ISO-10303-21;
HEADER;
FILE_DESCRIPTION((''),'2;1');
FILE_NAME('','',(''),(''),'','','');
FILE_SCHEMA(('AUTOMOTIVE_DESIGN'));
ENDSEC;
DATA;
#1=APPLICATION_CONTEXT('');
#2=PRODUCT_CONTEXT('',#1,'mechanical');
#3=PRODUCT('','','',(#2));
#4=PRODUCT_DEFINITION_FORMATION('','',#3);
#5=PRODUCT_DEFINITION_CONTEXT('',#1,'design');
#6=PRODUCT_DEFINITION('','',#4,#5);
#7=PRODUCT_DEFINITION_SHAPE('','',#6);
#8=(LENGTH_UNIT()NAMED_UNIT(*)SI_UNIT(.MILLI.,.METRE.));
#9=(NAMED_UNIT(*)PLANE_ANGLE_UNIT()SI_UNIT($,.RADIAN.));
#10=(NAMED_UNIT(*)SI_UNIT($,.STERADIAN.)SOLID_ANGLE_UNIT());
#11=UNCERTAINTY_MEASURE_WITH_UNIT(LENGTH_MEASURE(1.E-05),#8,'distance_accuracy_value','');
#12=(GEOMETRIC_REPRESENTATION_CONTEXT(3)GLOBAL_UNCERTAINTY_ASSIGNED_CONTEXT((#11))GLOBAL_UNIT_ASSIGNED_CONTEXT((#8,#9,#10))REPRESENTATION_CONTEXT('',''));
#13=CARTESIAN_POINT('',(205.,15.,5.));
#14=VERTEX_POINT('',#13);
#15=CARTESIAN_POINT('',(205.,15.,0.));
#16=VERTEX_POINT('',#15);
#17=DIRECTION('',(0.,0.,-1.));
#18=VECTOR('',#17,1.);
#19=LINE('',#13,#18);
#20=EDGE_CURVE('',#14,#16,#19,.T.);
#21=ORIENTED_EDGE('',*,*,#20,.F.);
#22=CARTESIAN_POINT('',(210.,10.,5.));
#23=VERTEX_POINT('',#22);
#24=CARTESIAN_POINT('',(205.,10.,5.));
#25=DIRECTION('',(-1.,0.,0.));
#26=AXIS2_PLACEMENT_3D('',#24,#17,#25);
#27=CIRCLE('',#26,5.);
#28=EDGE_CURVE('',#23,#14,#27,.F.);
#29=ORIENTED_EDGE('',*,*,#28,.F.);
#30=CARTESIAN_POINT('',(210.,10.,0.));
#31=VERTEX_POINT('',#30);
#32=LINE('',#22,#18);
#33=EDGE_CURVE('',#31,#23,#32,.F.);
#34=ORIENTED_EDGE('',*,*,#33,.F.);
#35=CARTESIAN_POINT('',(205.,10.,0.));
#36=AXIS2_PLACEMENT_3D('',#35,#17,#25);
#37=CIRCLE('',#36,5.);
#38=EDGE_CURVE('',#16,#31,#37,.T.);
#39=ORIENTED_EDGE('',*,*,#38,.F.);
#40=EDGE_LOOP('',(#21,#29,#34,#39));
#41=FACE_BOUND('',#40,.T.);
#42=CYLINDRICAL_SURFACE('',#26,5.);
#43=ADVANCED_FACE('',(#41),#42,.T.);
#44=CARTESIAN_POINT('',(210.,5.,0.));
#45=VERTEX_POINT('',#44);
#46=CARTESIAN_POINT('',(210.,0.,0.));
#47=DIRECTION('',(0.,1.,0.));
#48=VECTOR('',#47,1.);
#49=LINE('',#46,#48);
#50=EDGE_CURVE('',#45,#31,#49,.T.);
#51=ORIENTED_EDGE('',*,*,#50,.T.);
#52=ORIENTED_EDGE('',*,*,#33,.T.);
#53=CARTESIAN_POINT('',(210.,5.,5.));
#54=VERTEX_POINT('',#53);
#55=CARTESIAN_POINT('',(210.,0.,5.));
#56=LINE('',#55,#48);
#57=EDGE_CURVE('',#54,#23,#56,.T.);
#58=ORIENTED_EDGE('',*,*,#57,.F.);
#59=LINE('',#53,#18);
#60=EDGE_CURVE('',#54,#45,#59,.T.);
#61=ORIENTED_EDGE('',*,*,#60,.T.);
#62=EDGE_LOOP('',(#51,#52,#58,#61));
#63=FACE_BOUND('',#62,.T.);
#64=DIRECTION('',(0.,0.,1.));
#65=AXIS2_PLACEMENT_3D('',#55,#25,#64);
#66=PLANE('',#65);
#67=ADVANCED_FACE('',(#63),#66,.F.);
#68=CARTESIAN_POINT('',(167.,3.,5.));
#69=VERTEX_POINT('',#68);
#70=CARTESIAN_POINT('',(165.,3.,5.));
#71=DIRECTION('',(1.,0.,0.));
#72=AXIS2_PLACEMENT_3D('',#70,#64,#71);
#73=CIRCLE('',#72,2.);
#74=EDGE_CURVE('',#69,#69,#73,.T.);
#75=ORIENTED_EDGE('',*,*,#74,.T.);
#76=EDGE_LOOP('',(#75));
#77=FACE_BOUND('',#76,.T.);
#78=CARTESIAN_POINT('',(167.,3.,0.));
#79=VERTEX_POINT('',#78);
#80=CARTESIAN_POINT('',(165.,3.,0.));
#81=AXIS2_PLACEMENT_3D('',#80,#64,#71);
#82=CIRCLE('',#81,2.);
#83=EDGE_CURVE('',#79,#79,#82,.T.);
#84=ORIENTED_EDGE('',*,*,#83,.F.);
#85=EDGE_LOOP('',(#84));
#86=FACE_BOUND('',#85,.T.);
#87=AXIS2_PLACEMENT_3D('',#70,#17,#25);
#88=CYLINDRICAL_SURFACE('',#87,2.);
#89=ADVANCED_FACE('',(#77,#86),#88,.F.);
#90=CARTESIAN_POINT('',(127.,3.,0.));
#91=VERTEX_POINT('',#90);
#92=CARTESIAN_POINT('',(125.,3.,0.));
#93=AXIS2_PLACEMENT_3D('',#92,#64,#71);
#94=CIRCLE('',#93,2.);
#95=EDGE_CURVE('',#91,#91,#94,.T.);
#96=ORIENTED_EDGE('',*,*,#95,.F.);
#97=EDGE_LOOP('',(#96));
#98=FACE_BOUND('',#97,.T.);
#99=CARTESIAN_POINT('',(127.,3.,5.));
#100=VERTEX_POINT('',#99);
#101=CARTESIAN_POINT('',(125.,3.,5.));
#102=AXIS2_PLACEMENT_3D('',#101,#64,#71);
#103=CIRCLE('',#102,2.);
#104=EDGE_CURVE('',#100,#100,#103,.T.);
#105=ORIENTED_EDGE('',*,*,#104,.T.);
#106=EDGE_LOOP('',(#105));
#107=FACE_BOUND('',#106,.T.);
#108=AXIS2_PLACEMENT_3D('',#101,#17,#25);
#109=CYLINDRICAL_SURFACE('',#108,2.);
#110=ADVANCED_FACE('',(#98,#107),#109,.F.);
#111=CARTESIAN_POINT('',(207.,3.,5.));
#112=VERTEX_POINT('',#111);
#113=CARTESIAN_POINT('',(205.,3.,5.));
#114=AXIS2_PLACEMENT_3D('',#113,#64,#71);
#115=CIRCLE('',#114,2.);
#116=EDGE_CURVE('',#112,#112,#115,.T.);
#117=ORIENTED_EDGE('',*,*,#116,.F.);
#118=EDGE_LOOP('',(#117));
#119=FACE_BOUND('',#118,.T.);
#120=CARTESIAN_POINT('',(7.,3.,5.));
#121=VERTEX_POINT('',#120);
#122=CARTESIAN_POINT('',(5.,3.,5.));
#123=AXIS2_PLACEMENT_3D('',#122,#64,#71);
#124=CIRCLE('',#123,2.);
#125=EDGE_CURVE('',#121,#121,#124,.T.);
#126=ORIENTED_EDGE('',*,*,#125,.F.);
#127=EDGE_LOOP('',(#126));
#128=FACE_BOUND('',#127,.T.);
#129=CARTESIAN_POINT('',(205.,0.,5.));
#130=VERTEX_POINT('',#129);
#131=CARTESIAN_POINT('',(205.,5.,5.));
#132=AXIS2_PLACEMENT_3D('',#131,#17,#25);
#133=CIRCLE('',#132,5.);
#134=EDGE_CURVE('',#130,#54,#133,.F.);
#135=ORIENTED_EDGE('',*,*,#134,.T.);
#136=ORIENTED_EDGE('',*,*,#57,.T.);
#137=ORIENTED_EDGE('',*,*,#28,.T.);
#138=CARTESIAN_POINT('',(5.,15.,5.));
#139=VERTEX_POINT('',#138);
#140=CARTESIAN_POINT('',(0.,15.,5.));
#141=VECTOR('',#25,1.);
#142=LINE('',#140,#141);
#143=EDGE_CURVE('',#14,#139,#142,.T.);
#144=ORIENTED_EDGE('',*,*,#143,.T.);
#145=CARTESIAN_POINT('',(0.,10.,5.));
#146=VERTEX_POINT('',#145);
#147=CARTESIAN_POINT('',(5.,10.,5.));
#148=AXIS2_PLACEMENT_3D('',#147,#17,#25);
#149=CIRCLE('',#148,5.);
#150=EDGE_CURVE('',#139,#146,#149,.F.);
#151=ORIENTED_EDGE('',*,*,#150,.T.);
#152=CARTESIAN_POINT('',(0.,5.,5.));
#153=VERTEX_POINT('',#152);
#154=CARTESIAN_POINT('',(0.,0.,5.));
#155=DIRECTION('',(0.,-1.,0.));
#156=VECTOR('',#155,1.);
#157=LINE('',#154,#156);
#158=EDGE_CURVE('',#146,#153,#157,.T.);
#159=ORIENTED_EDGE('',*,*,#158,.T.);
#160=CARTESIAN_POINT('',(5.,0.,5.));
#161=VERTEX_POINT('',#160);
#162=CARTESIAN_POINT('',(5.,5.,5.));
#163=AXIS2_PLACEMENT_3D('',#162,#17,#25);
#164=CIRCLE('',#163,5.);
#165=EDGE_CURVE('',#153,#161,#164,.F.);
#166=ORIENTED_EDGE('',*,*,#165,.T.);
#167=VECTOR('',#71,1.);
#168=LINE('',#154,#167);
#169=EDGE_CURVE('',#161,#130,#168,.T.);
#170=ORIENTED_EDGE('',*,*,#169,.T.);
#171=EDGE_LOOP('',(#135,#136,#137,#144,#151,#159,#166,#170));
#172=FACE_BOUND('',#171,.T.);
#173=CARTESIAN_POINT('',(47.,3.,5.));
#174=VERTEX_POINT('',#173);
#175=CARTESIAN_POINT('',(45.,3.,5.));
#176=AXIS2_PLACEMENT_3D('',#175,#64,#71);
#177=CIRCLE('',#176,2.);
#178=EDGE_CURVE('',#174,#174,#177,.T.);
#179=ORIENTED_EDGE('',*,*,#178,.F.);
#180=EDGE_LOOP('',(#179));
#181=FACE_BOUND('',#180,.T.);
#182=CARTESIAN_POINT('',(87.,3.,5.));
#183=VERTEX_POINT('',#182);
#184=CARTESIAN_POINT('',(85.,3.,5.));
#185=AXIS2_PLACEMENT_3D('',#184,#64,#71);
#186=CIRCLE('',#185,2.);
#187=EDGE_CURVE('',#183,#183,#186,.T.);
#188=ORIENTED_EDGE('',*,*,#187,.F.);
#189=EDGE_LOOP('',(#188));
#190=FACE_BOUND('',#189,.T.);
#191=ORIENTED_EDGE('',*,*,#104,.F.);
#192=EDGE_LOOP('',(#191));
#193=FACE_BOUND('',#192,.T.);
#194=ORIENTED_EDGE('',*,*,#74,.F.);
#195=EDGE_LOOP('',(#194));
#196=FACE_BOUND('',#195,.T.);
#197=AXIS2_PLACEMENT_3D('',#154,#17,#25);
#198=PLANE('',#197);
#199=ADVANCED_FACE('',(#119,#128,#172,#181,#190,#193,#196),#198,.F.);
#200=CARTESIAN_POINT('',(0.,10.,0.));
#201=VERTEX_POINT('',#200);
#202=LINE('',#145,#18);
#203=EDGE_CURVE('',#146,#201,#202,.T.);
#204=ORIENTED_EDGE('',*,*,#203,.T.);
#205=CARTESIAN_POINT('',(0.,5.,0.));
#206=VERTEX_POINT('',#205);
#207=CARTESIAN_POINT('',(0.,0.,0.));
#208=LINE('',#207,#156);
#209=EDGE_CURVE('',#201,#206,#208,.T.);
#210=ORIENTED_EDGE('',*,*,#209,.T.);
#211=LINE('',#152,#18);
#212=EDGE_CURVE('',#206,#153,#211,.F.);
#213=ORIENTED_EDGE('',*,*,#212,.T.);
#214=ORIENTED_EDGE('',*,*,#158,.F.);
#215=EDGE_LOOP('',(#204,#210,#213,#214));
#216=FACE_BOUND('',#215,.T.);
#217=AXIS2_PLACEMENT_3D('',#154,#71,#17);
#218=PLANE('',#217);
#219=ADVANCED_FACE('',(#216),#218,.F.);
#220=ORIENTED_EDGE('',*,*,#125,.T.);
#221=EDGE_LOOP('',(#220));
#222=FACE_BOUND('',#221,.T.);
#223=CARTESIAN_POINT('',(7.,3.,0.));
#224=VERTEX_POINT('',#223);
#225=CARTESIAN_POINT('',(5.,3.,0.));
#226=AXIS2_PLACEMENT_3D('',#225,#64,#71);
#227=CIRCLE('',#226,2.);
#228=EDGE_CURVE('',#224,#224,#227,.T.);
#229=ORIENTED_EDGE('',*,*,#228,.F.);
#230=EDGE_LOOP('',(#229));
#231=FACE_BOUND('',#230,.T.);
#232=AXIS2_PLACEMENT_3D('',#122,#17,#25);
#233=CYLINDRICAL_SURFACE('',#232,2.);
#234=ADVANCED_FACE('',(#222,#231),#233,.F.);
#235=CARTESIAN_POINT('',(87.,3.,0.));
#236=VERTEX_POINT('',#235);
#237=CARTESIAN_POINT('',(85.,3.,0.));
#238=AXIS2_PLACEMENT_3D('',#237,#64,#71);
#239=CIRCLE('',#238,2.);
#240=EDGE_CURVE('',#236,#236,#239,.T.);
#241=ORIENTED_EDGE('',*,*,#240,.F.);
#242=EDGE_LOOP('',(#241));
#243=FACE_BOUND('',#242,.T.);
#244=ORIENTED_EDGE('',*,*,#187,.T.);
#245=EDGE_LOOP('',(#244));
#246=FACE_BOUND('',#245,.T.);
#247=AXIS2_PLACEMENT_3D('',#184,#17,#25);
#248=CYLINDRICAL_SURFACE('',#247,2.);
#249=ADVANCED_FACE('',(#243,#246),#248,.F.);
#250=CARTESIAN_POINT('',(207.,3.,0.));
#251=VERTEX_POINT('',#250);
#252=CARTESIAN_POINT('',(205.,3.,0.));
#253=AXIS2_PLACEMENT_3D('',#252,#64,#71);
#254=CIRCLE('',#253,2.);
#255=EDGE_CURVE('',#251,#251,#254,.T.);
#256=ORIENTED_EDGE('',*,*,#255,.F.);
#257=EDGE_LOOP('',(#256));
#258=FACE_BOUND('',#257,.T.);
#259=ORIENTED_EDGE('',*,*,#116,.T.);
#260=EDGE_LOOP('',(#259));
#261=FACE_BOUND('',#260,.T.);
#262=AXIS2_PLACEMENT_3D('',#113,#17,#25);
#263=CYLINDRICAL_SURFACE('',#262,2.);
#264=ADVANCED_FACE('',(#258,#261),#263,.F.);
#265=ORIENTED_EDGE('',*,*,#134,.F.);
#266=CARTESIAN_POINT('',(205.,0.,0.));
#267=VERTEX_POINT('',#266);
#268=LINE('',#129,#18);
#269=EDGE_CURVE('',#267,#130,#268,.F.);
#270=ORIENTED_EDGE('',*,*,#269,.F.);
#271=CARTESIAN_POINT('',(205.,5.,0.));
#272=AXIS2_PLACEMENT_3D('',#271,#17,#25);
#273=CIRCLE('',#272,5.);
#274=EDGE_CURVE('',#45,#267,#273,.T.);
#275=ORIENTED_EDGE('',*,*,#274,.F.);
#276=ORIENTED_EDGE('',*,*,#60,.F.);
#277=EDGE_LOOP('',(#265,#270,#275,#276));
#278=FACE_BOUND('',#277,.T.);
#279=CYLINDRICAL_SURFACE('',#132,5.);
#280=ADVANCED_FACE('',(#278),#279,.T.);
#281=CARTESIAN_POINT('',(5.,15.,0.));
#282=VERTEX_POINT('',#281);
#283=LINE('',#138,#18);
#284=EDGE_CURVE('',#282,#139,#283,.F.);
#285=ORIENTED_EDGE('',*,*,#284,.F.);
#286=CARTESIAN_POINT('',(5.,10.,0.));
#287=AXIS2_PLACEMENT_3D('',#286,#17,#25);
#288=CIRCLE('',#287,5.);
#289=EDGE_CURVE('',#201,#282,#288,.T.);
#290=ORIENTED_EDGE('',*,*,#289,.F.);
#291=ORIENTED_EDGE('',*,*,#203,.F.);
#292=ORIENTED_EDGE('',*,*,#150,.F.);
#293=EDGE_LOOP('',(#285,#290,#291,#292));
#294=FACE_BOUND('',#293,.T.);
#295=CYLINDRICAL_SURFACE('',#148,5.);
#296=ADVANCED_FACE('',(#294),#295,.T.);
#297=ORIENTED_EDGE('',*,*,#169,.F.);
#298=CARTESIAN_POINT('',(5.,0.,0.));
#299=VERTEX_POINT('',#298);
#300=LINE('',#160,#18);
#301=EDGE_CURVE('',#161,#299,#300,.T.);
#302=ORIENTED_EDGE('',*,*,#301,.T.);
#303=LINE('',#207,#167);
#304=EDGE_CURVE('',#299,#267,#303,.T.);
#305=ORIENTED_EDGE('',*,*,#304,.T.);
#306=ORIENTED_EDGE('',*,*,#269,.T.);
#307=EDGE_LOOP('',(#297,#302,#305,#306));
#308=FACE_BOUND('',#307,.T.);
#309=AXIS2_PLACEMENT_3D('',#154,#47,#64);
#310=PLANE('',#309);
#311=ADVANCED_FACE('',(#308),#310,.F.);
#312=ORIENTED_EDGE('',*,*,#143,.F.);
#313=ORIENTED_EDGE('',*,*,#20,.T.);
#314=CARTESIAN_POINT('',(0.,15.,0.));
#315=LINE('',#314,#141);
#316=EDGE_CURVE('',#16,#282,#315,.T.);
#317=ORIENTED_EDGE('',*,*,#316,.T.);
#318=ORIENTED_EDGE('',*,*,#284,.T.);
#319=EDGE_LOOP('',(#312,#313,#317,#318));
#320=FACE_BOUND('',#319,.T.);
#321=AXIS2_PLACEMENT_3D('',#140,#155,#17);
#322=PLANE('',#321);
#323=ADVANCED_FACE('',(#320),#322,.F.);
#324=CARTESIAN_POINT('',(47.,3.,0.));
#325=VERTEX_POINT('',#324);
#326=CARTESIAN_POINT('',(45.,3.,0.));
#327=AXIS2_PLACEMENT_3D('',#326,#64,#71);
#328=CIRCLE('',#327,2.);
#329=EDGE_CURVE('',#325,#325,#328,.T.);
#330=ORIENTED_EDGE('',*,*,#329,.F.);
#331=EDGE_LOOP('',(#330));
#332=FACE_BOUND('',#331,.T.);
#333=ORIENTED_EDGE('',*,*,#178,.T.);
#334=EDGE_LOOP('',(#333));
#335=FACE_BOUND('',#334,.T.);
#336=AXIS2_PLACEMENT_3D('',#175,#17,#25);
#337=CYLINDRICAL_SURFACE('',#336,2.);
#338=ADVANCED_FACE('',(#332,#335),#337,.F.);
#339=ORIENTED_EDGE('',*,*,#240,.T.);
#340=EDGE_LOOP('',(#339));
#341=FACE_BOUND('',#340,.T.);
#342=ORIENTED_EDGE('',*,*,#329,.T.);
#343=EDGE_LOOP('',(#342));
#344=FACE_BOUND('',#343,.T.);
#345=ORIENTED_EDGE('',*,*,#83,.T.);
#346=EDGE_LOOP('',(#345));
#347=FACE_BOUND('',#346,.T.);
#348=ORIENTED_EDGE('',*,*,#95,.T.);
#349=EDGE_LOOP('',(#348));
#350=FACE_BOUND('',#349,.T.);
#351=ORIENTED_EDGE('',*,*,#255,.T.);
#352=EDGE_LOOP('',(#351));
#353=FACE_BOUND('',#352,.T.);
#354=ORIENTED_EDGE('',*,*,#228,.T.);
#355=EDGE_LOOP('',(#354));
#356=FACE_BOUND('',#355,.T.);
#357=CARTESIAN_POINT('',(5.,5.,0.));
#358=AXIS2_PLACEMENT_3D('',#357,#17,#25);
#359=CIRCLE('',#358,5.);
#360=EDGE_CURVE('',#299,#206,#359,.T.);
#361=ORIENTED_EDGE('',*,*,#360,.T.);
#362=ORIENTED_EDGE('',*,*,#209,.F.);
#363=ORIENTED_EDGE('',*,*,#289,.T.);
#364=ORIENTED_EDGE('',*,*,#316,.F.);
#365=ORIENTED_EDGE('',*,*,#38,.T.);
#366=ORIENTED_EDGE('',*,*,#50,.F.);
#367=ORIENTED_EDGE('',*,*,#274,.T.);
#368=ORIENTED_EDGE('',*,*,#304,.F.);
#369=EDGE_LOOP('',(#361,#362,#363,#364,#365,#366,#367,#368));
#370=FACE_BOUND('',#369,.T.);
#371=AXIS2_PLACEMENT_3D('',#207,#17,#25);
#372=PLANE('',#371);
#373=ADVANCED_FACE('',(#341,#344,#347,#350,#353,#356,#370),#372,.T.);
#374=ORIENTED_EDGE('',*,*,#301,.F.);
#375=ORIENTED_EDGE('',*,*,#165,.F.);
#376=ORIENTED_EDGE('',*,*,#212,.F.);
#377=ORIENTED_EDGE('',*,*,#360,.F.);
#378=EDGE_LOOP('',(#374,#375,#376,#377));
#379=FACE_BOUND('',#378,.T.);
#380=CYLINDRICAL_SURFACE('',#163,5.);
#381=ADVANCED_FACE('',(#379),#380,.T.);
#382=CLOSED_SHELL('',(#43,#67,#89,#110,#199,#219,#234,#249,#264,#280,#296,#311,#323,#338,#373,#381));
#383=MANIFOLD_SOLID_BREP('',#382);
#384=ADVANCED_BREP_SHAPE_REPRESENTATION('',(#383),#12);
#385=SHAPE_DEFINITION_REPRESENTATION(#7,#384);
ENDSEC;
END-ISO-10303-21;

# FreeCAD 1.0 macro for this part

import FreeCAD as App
import Part
import Sketcher
from FreeCAD import Vector
Q = App.Units.Quantity


def edges_at(feature, points):
    """Names of the edges that pass closest to the given points."""
    edges = feature.Shape.Edges
    near = lambda p: min(range(len(edges)), key=lambda i: edges[i].distToShape(Part.Vertex(*p))[0])
    return sorted({f"Edge{near(p) + 1}" for p in points})


def add_polygon(sketch, points):
    """Adds a closed chain of lines whose ends are joined by coincident constraints."""
    first, n = sketch.GeometryCount, len(points)
    for a, b in zip(points, points[1:] + points[:1]):
        sketch.addGeometry(Part.LineSegment(App.Vector(*a, 0), App.Vector(*b, 0)), False)
    for i in range(n):
        sketch.addConstraint(Sketcher.Constraint("Coincident", first + i, 2, first + (i + 1) % n, 1))

doc = App.newDocument("Part")
body = doc.addObject("PartDesign::Body", "Body")

sketch1 = body.newObject("Sketcher::SketchObject", "Sketch")
sketch1.AttachmentSupport = (doc.getObject("XY_Plane"), [""])
sketch1.MapMode = "FlatFace"
add_polygon(sketch1, [(0, 15), (0, 0), (210, 0), (210, 15)])
sketch1.addGeometry(Part.Circle(Vector(5, 3, 0), Vector(0, 0, 1), 2), False)
sketch1.addGeometry(Part.Circle(Vector(45, 3, 0), Vector(0, 0, 1), 2), False)
sketch1.addGeometry(Part.Circle(Vector(85, 3, 0), Vector(0, 0, 1), 2), False)
sketch1.addGeometry(Part.Circle(Vector(125, 3, 0), Vector(0, 0, 1), 2), False)
sketch1.addGeometry(Part.Circle(Vector(165, 3, 0), Vector(0, 0, 1), 2), False)
sketch1.addGeometry(Part.Circle(Vector(205, 3, 0), Vector(0, 0, 1), 2), False)
sketch1.addConstraint([
    Sketcher.Constraint("Vertical", 0),
    Sketcher.Constraint("Horizontal", 1),
    Sketcher.Constraint("Vertical", 2),
    Sketcher.Constraint("Horizontal", 3),
    Sketcher.Constraint("Coincident", 0, 2, -1, 1),
    Sketcher.Constraint("Equal", 4, 5),
    Sketcher.Constraint("Equal", 5, 6),
    Sketcher.Constraint("Equal", 6, 7),
    Sketcher.Constraint("Equal", 7, 8),
    Sketcher.Constraint("Equal", 8, 9),
    Sketcher.Constraint("Horizontal", 4, 3, 5, 3),
    Sketcher.Constraint("Horizontal", 5, 3, 6, 3),
    Sketcher.Constraint("Horizontal", 6, 3, 7, 3),
    Sketcher.Constraint("Horizontal", 7, 3, 8, 3),
    Sketcher.Constraint("Horizontal", 8, 3, 9, 3),
    Sketcher.Constraint("Diameter", 4, Q("4 mm")),
    Sketcher.Constraint("DistanceX", 1, 1, 1, 2, Q("210 mm")),
    Sketcher.Constraint("DistanceY", 0, 2, 0, 1, Q("15 mm")),
    Sketcher.Constraint("DistanceX", -1, 1, 4, 3, Q("5 mm")),
    Sketcher.Constraint("DistanceY", -1, 1, 4, 3, Q("3 mm")),
    Sketcher.Constraint("DistanceX", -1, 1, 5, 3, Q("45 mm")),
    Sketcher.Constraint("DistanceX", -1, 1, 6, 3, Q("85 mm")),
    Sketcher.Constraint("DistanceX", -1, 1, 7, 3, Q("125 mm")),
    Sketcher.Constraint("DistanceX", -1, 1, 8, 3, Q("165 mm")),
    Sketcher.Constraint("DistanceX", -1, 1, 9, 3, Q("205 mm")),
])
pad1 = body.newObject("PartDesign::Pad", "Pad")
pad1.Profile = sketch1
pad1.Length = 5
doc.recompute()

fillet = body.newObject("PartDesign::Fillet", "Fillet")
fillet.Base = (pad1, edges_at(pad1, [
    (0, 15, 2.5),
    (210, 15, 2.5),
    (210, 0, 2.5),
    (0, 0, 2.5),
]))
fillet.Radius = 5

doc.recompute()
